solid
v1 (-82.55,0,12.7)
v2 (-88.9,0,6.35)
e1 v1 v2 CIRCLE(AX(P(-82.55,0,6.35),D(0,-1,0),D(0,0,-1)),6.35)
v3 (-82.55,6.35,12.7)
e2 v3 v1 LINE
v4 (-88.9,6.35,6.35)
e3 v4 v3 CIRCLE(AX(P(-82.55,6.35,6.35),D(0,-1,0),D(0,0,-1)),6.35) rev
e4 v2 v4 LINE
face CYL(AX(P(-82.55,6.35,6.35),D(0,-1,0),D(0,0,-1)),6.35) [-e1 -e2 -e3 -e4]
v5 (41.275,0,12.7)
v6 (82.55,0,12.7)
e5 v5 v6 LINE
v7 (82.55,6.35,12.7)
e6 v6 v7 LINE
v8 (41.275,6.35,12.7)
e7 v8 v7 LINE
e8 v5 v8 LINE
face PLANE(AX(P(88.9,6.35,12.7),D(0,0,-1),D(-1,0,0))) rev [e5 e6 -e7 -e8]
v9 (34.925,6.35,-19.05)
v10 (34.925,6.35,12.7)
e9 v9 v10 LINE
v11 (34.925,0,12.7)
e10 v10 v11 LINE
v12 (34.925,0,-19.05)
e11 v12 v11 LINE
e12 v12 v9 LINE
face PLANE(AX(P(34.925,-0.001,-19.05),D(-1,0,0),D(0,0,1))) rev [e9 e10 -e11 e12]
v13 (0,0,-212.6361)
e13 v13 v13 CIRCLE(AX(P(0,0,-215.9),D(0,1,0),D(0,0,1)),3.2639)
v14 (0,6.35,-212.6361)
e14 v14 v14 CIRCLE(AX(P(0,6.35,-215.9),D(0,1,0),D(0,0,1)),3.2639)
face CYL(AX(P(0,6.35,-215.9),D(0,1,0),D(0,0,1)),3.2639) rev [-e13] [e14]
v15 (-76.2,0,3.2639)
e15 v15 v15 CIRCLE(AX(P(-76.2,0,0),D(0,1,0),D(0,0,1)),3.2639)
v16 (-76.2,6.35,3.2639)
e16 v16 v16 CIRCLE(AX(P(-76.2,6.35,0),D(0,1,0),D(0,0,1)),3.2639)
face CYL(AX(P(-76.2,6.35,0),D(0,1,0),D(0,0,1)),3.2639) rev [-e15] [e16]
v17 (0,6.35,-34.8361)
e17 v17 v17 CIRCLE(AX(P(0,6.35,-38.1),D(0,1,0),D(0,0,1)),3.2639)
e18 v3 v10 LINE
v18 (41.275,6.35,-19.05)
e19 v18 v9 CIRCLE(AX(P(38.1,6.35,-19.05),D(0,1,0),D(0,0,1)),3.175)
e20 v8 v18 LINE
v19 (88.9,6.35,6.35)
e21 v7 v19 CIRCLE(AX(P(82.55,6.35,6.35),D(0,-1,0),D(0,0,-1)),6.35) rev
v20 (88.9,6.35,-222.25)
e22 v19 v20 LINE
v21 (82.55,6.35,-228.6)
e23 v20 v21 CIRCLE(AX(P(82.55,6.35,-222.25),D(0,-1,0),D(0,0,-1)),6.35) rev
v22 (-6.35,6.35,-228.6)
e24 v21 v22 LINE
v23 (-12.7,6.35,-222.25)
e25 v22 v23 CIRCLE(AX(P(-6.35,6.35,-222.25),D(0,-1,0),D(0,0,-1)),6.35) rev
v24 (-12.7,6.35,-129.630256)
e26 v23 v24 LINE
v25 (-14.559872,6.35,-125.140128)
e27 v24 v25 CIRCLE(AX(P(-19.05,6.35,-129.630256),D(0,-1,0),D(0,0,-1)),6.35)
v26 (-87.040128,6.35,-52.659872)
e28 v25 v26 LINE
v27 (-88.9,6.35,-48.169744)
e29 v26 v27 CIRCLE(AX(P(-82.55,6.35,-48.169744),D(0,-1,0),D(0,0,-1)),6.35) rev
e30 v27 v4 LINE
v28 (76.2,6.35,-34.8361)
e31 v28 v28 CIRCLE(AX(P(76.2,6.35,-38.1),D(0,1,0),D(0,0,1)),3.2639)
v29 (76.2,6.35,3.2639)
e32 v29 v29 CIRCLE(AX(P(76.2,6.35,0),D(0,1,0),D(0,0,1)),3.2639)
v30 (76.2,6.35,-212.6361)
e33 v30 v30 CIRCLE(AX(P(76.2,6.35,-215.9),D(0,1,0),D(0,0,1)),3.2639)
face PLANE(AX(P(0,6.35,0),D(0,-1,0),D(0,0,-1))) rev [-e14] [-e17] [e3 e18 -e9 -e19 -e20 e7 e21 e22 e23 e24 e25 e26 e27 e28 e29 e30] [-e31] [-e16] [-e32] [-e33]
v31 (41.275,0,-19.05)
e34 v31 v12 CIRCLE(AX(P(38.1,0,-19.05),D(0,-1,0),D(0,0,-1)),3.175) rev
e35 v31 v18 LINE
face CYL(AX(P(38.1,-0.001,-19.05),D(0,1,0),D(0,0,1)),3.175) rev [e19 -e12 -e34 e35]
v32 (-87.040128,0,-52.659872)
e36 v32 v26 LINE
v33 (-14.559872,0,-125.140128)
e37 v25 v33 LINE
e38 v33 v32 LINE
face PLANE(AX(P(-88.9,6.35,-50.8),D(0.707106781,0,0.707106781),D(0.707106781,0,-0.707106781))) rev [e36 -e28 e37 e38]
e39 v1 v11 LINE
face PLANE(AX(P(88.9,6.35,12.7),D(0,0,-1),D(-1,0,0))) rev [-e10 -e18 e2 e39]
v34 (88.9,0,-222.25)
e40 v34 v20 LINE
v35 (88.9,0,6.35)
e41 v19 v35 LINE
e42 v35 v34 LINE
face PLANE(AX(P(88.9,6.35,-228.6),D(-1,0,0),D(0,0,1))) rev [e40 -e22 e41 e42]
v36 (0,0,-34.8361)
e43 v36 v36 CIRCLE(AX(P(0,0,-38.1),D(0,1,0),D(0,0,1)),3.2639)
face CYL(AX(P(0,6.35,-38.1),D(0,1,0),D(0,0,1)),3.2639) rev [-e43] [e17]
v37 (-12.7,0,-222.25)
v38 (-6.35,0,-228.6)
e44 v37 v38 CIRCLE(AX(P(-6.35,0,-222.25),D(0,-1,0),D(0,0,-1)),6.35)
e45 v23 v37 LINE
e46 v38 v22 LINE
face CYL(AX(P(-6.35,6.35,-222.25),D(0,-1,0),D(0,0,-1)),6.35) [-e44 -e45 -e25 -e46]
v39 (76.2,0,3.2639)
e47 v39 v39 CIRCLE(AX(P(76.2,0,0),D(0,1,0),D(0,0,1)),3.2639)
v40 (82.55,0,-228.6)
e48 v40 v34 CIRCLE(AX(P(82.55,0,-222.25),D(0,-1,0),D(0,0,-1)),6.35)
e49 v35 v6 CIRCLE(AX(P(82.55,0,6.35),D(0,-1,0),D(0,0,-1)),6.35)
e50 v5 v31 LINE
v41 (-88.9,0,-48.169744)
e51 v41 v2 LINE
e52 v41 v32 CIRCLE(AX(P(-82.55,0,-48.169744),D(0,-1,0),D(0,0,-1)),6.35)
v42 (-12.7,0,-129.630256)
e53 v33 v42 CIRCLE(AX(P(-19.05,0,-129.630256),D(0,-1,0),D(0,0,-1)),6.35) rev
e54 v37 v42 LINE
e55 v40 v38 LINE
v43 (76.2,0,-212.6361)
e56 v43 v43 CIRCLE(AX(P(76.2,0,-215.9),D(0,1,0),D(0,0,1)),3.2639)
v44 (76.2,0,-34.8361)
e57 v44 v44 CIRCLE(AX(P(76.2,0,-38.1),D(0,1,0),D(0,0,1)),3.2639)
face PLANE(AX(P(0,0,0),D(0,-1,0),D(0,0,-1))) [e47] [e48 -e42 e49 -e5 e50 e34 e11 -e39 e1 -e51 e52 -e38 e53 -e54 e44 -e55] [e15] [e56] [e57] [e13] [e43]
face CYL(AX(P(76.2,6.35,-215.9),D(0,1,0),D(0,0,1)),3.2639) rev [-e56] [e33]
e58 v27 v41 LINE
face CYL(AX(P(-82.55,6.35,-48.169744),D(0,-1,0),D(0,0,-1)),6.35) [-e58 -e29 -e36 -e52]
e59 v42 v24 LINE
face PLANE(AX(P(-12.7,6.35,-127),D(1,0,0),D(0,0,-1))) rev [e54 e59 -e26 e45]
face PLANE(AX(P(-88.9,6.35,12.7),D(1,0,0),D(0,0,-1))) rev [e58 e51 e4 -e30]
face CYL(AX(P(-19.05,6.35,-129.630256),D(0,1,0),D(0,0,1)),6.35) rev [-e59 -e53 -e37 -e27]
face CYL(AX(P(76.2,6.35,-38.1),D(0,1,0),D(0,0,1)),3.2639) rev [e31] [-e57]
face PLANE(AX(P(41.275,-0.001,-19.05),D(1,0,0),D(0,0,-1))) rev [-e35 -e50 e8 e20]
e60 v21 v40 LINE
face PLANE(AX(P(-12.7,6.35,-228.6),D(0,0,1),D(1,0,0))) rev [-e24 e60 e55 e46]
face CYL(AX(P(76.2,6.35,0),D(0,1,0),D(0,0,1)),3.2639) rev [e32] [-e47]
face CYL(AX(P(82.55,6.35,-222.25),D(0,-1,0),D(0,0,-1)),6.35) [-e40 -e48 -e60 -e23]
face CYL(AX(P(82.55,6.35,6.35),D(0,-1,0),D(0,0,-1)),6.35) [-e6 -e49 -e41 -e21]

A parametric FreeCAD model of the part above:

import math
import FreeCAD as App
import Part
import Sketcher
Q = App.Units.Quantity


def edges_at(feature, points):
    """Names of the edges that pass closest to the given points."""
    edges = feature.Shape.Edges
    near = lambda p: min(range(len(edges)), key=lambda i: edges[i].distToShape(Part.Vertex(*p))[0])
    return sorted({f"Edge{near(p) + 1}" for p in points})


def add_polygon(sketch, points):
    """Adds a closed chain of lines whose ends are joined by coincident constraints."""
    first, n = sketch.GeometryCount, len(points)
    for a, b in zip(points, points[1:] + points[:1]):
        sketch.addGeometry(Part.LineSegment(App.Vector(*a, 0), App.Vector(*b, 0)), False)
    for i in range(n):
        sketch.addConstraint(Sketcher.Constraint("Coincident", first + i, 2, first + (i + 1) % n, 1))

doc = App.newDocument("Part")
params = doc.addObject("Spreadsheet::Sheet", "Params")
for row, (alias, value) in enumerate([
    ("sketch1_width", "4 in"),
    ("sketch1_width2", "7 in"),
    ("sketch1_height", "2.5 in"),
    ("sketch1_height2", "9.5 in"),
    ("pad1_length", "0.25 in"),
    ("sketch2_diameter", "0.257 in"),
    ("hole_diameter", "0.257 in"),
    ("hole_depth", "0.25 in"),
    ("fillet_radius", "0.25 in"),
    ("sketch3_radius", "0.125 in"),
    ("sketch3_height", "1.25 in"),
], start=1):
    params.set(f"A{row}", alias)
    params.set(f"B{row}", "=" + value)
    params.setAlias(f"B{row}", alias)

body = doc.addObject("PartDesign::Body", "Body")

# Sketch on XZ plane
sketch1 = doc.addObject("Sketcher::SketchObject", "Sketch")
body.addObject(sketch1)
sketch1.AttachmentSupport = (doc.XZ_Plane, [""])
sketch1.MapMode = "FlatFace"
add_polygon(sketch1, [(89, -229), (-13, -229), (-13, -127), (-89, -51), (-89, 13), (89, 13)])  # lines 0-5
sketch1.addConstraint(Sketcher.Constraint("Horizontal", 0))
sketch1.addConstraint(Sketcher.Constraint("Vertical", 1))
sketch1.addConstraint(Sketcher.Constraint("Vertical", 3))
sketch1.addConstraint(Sketcher.Constraint("Horizontal", 4))
sketch1.addConstraint(Sketcher.Constraint("Vertical", 5))
sketch1.addConstraint(Sketcher.Constraint("Equal", 0, 1))
sketch1.addConstraint(Sketcher.Constraint("DistanceX", 0, 2, 0, 1, Q("4 in")))
sketch1.addConstraint(Sketcher.Constraint("DistanceX", 4, 1, 4, 2, Q("7 in")))
sketch1.addConstraint(Sketcher.Constraint("DistanceY", 3, 1, 3, 2, Q("2.5 in")))
sketch1.addConstraint(Sketcher.Constraint("DistanceY", 5, 2, 5, 1, Q("9.5 in")))
sketch1.addConstraint(Sketcher.Constraint("DistanceY", 0, 2, -1, 1, Q("9 in")))
sketch1.addConstraint(Sketcher.Constraint("DistanceX", 0, 2, -1, 1, Q("0.5 in")))
sketch1.setExpression("Constraints[12]", "Params.sketch1_width")
sketch1.setExpression("Constraints[13]", "Params.sketch1_width2")
sketch1.setExpression("Constraints[14]", "Params.sketch1_height")
sketch1.setExpression("Constraints[15]", "Params.sketch1_height2")
pad1 = doc.addObject("PartDesign::Pad", "Pad")
body.addObject(pad1)
pad1.Profile = sketch1
pad1.setExpression("Length", "Params.pad1_length")
pad1.Reversed = True

# Sketch on XZ plane
sketch2 = doc.addObject("Sketcher::SketchObject", "Sketch001")
body.addObject(sketch2)
sketch2.AttachmentSupport = (doc.XZ_Plane, [""])
sketch2.MapMode = "FlatFace"
sketch2.AttachmentOffset = App.Placement(App.Vector(0, 0, -0.25 * 25.4), App.Rotation())
sketch2.addGeometry(Part.Circle(App.Vector(76.2, -215.9, 0), App.Vector(0, 0, 1), 3.3), False)
sketch2.addGeometry(Part.Circle(App.Vector(0, -215.9, 0), App.Vector(0, 0, 1), 3.3), False)
sketch2.addGeometry(Part.Circle(App.Vector(0, -38.1, 0), App.Vector(0, 0, 1), 3.3), False)
sketch2.addGeometry(Part.Circle(App.Vector(76.2, -38.1, 0), App.Vector(0, 0, 1), 3.3), False)
sketch2.addGeometry(Part.Circle(App.Vector(76.2, 0, 0), App.Vector(0, 0, 1), 3.3), False)
sketch2.addGeometry(Part.Circle(App.Vector(-76.2, 0, 0), App.Vector(0, 0, 1), 3.3), False)
sketch2.addConstraint(Sketcher.Constraint("Equal", 0, 1))
sketch2.addConstraint(Sketcher.Constraint("Equal", 1, 2))
sketch2.addConstraint(Sketcher.Constraint("Equal", 2, 3))
sketch2.addConstraint(Sketcher.Constraint("Equal", 3, 4))
sketch2.addConstraint(Sketcher.Constraint("Equal", 4, 5))
sketch2.addConstraint(Sketcher.Constraint("Symmetric", 4, 3, 5, 3, -1, 1))
sketch2.addConstraint(Sketcher.Constraint("PointOnObject", 1, 3, -2))
sketch2.addConstraint(Sketcher.Constraint("PointOnObject", 2, 3, -2))
sketch2.addConstraint(Sketcher.Constraint("PointOnObject", 4, 3, -1))
sketch2.addConstraint(Sketcher.Constraint("Horizontal", 0, 3, 1, 3))
sketch2.addConstraint(Sketcher.Constraint("Horizontal", 2, 3, 3, 3))
sketch2.addConstraint(Sketcher.Constraint("Vertical", 0, 3, 3, 3))
sketch2.addConstraint(Sketcher.Constraint("Vertical", 3, 3, 4, 3))
sketch2.addConstraint(Sketcher.Constraint("Diameter", 0, Q("0.257 in")))
sketch2.addConstraint(Sketcher.Constraint("DistanceX", -1, 1, 0, 3, Q("3 in")))
sketch2.addConstraint(Sketcher.Constraint("DistanceY", 1, 3, 2, 3, Q("7 in")))
sketch2.addConstraint(Sketcher.Constraint("DistanceY", 0, 3, -1, 1, Q("8.5 in")))
sketch2.setExpression("Constraints[13]", "Params.sketch2_diameter")
doc.recompute()
hole = doc.addObject("PartDesign::Hole", "Hole")
body.addObject(hole)
hole.Profile = sketch2
hole.ThreadType = "None"
hole.setExpression("Diameter", "Params.hole_diameter")
hole.DepthType = "Dimension"
hole.setExpression("Depth", "Params.hole_depth")
hole.DrillPoint = "Angled"
hole.DrillPointAngle = 118
hole.Reversed = True
doc.recompute()

fillet = doc.addObject("PartDesign::Fillet", "Fillet")
body.addObject(fillet)
fillet.Base = (hole, edges_at(hole, [
    (-12.7, 3.175, -228.6),
    (88.9, 3.175, -228.6),
    (88.9, 3.175, 12.7),
    (-88.9, 3.175, 12.7),
    (-88.9, 3.175, -50.8),
    (-12.7, 3.175, -127),
]))
fillet.setExpression("Radius", "Params.fillet_radius")

# Sketch on XZ plane
sketch3 = doc.addObject("Sketcher::SketchObject", "Sketch002")
body.addObject(sketch3)
sketch3.AttachmentSupport = (doc.XZ_Plane, [""])
sketch3.MapMode = "FlatFace"
sketch3.AttachmentOffset = App.Placement(App.Vector(0, 0, -0.25 * 25.4), App.Rotation())
sketch3.addGeometry(Part.LineSegment(App.Vector(41.3, 12.7, 0), App.Vector(41.3, -19.1, 0)), False)
sketch3.addGeometry(Part.ArcOfCircle(Part.Circle(App.Vector(38.1, -19.1, 0), App.Vector(0, 0, 1), 3.2), math.radians(180), math.radians(360)), False)
sketch3.addGeometry(Part.LineSegment(App.Vector(34.9, -19.1, 0), App.Vector(34.9, 12.7, 0)), False)
sketch3.addGeometry(Part.ArcOfCircle(Part.Circle(App.Vector(38.1, 12.7, 0), App.Vector(0, 0, 1), 3.2), math.radians(0), math.radians(180)), False)
sketch3.addConstraint(Sketcher.Constraint("Tangent", 0, 2, 1, 2))
sketch3.addConstraint(Sketcher.Constraint("Tangent", 1, 1, 2, 1))
sketch3.addConstraint(Sketcher.Constraint("Tangent", 2, 2, 3, 2))
sketch3.addConstraint(Sketcher.Constraint("Tangent", 3, 1, 0, 1))
sketch3.addConstraint(Sketcher.Constraint("Vertical", 0))
sketch3.addConstraint(Sketcher.Constraint("Vertical", 2))
sketch3.addConstraint(Sketcher.Constraint("Radius", 1, Q("0.125 in")))
sketch3.addConstraint(Sketcher.Constraint("DistanceY", 0, 2, 0, 1, Q("1.25 in")))
sketch3.addConstraint(Sketcher.Constraint("DistanceX", -1, 1, 1, 3, Q("1.5 in")))
sketch3.addConstraint(Sketcher.Constraint("DistanceY", -1, 1, 3, 3, Q("0.5 in")))
sketch3.setExpression("Constraints[6]", "Params.sketch3_radius")
sketch3.setExpression("Constraints[7]", "Params.sketch3_height")
pocket1 = doc.addObject("PartDesign::Pocket", "Pocket")
body.addObject(pocket1)
pocket1.Profile = sketch3
pocket1.Type = "UpToFirst"
pocket1.Reversed = True

doc.recompute()
